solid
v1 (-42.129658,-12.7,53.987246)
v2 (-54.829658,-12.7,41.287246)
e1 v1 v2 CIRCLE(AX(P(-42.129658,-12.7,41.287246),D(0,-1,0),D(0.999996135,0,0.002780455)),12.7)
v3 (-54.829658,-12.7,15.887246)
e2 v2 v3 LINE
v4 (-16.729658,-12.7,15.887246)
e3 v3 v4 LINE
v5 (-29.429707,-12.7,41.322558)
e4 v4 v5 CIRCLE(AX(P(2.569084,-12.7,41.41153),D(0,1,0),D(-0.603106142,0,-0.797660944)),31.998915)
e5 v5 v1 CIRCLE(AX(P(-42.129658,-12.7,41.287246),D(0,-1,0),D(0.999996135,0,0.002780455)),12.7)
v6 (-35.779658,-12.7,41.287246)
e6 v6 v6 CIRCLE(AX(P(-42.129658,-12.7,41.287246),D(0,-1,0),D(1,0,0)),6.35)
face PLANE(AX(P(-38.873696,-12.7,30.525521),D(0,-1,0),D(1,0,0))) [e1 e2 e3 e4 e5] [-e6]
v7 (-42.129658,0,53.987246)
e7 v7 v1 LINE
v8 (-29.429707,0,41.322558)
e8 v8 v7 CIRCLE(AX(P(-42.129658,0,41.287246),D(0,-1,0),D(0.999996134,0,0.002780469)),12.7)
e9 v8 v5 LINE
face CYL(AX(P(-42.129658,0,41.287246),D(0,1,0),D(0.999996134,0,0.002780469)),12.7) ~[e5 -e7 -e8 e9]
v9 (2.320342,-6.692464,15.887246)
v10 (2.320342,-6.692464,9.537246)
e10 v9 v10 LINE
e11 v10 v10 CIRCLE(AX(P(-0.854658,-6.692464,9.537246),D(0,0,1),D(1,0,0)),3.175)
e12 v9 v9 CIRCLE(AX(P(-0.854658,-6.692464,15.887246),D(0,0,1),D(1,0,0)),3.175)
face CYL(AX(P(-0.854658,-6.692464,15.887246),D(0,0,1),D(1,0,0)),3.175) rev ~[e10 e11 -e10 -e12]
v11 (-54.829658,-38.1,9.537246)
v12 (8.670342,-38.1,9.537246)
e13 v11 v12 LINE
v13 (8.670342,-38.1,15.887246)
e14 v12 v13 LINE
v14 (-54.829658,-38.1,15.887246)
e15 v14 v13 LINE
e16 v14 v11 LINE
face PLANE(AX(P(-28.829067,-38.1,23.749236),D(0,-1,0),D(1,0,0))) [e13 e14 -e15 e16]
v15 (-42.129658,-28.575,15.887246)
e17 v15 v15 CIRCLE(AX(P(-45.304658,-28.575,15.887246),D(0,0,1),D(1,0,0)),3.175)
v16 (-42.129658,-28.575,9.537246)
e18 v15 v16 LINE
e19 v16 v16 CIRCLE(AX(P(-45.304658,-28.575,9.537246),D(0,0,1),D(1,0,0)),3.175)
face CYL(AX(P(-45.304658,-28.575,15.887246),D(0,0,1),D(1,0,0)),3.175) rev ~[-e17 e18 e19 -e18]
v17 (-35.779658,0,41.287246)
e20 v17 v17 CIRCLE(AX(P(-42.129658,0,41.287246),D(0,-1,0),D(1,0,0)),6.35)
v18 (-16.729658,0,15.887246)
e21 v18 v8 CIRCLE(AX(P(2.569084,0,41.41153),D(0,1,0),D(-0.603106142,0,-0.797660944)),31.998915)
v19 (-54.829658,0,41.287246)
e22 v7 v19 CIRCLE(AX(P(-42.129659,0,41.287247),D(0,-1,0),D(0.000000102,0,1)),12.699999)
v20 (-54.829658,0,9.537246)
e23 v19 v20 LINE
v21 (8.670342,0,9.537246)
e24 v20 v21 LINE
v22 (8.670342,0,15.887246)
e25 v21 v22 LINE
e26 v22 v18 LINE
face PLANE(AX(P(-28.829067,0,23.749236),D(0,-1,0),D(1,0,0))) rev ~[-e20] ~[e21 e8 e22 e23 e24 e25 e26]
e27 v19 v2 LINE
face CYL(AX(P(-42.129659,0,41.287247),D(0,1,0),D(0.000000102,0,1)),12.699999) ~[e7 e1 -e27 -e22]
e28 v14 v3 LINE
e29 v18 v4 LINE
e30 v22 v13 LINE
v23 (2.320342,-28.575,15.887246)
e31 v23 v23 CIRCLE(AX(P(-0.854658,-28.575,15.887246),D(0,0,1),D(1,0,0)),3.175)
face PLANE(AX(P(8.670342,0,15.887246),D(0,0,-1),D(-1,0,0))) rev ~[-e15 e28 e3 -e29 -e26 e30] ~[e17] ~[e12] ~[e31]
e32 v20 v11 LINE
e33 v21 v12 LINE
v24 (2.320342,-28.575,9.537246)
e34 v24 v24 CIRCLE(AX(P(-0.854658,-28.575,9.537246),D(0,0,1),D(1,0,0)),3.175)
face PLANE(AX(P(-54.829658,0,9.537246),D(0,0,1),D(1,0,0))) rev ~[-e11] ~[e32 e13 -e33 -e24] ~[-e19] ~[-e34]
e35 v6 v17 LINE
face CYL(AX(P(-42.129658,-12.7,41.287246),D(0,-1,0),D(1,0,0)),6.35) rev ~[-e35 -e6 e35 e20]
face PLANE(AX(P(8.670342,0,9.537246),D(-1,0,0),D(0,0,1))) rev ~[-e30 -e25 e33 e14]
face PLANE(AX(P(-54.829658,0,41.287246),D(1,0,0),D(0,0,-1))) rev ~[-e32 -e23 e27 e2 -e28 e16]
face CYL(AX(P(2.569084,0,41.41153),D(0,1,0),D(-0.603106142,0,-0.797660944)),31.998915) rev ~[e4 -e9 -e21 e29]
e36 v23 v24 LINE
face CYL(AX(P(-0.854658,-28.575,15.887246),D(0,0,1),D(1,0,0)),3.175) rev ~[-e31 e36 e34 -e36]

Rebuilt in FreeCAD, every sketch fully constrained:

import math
import FreeCAD as App
import Part
import Sketcher

V = App.Vector
Q = App.Units.Quantity

doc = App.newDocument("Part")
body = doc.addObject("PartDesign::Body", "Body")

sketch1 = doc.addObject("Sketcher::SketchObject", "Sketch")
body.addObject(sketch1)
sketch1.AttachmentSupport = (doc.XZ_Plane, [""])
sketch1.MapMode = "FlatFace"
sketch1.addGeometry([
    Part.ArcOfCircle(Part.Circle(V(-42, 41, 0), V(0, 0, 1), 13), math.radians(90), math.radians(180)),
    Part.LineSegment(V(-55, 41, 0), V(-55, 10, 0)),
    Part.LineSegment(V(-55, 10, 0), V(9, 10, 0)),
    Part.LineSegment(V(9, 10, 0), V(9, 16, 0)),
    Part.LineSegment(V(9, 16, 0), V(-17, 16, 0)),
    Part.ArcOfCircle(Part.Circle(V(3, 41, 0), V(0, 0, 1), 32), math.radians(-180), math.radians(-127)),
    Part.ArcOfCircle(Part.Circle(V(-42, 41, 0), V(0, 0, 1), 13), math.radians(0), math.radians(90)),
], False)
sketch1.addConstraint([
    Sketcher.Constraint("Tangent", 0, 2, 1, 1),
    Sketcher.Constraint("Coincident", 1, 2, 2, 1),
    Sketcher.Constraint("Coincident", 2, 2, 3, 1),
    Sketcher.Constraint("Coincident", 3, 2, 4, 1),
    Sketcher.Constraint("Coincident", 4, 2, 5, 2),
    Sketcher.Constraint("Tangent", 5, 1, 6, 1),
    Sketcher.Constraint("Tangent", 6, 2, 0, 1),
    Sketcher.Constraint("Vertical", 1),
    Sketcher.Constraint("Horizontal", 2),
    Sketcher.Constraint("Vertical", 3),
    Sketcher.Constraint("Horizontal", 4),
    Sketcher.Constraint("Equal", 0, 6),
    Sketcher.Constraint("Vertical", 0, 3, 6, 2),
    Sketcher.Constraint("Radius", 0, Q("0.4999999 in")),
    Sketcher.Constraint("DistanceX", 4, 2, 4, 1, Q("1 in")),
    Sketcher.Constraint("DistanceX", 2, 1, 2, 2, Q("2.5 in")),
    Sketcher.Constraint("DistanceY", 3, 2, 6, 3, Q("1 in")),
    Sketcher.Constraint("DistanceY", 1, 2, 1, 1, Q("1.25 in")),
    Sketcher.Constraint("Radius", 5, 31.998915),
    Sketcher.Constraint("DistanceX", 0, 3, -1, 1, 42.129659),
    Sketcher.Constraint("DistanceY", -1, 1, 5, 3, 41.41153),
])
pad1 = doc.addObject("PartDesign::Pad", "Pad")
body.addObject(pad1)
pad1.Profile = sketch1
pad1.Length = Q("1.5 in")

sketch2 = doc.addObject("Sketcher::SketchObject", "Sketch001")
body.addObject(sketch2)
sketch2.AttachmentSupport = (doc.XZ_Plane, [""])
sketch2.MapMode = "FlatFace"
sketch2.AttachmentOffset = App.Placement(V(0, 0, 1.5 * 25.4), App.Rotation())
sketch2.addGeometry([
    Part.LineSegment(V(-55, 16, 0), V(-17, 16, 0)),
    Part.ArcOfCircle(Part.Circle(V(3, 41, 0), V(0, 0, 1), 32), math.radians(-180), math.radians(-127)),
    Part.ArcOfCircle(Part.Circle(V(-42, 41, 0), V(0, 0, 1), 13), math.radians(0), math.radians(180)),
    Part.LineSegment(V(-55, 41, 0), V(-55, 16, 0)),
], False)
sketch2.addConstraint([
    Sketcher.Constraint("Coincident", 0, 2, 1, 2),
    Sketcher.Constraint("Tangent", 1, 1, 2, 1),
    Sketcher.Constraint("Tangent", 2, 2, 3, 1),
    Sketcher.Constraint("Coincident", 3, 2, 0, 1),
    Sketcher.Constraint("Horizontal", 0),
    Sketcher.Constraint("Vertical", 3),
    Sketcher.Constraint("Radius", 2, Q("0.5 in")),
    Sketcher.Constraint("DistanceY", 3, 2, 3, 1, Q("1 in")),
    Sketcher.Constraint("DistanceX", 0, 1, 0, 2, Q("1.5 in")),
    Sketcher.Constraint("Radius", 1, 31.998915),
    Sketcher.Constraint("DistanceY", -1, 1, 1, 3, 41.41153),
    Sketcher.Constraint("DistanceX", 0, 2, -1, 1, 16.729658),
])
pocket1 = doc.addObject("PartDesign::Pocket", "Pocket")
body.addObject(pocket1)
pocket1.Profile = sketch2
pocket1.Length = Q("1 in")

sketch3 = doc.addObject("Sketcher::SketchObject", "Sketch002")
body.addObject(sketch3)
sketch3.AttachmentSupport = (doc.XZ_Plane, [""])
sketch3.MapMode = "FlatFace"
sketch3.AttachmentOffset = App.Placement(V(0, 0, 0.5 * 25.4), App.Rotation())
sketch3.addGeometry(Part.Circle(V(-42, 41, 0), V(0, 0, 1), 6), False)
sketch3.addConstraint([
    Sketcher.Constraint("Diameter", 0, Q("0.5 in")),
    Sketcher.Constraint("DistanceX", 0, 3, -1, 1, 42.129658),
    Sketcher.Constraint("DistanceY", -1, 1, 0, 3, 41.287246),
])
pocket2 = doc.addObject("PartDesign::Pocket", "Pocket001")
body.addObject(pocket2)
pocket2.Profile = sketch3
pocket2.Type = "ThroughAll"

sketch4 = doc.addObject("Sketcher::SketchObject", "Sketch003")
body.addObject(sketch4)
sketch4.AttachmentSupport = (doc.XY_Plane, [""])
sketch4.MapMode = "FlatFace"
sketch4.AttachmentOffset = App.Placement(V(0, 0, 15.887246), App.Rotation())
sketch4.addGeometry([
    Part.Circle(V(-0.9, -6.7, 0), V(0, 0, 1), 3.2),
    Part.Circle(V(-0.9, -28.6, 0), V(0, 0, 1), 3.2),
    Part.Circle(V(-45.3, -28.6, 0), V(0, 0, 1), 3.2),
], False)
sketch4.addConstraint([
    Sketcher.Constraint("Equal", 0, 1),
    Sketcher.Constraint("Equal", 1, 2),
    Sketcher.Constraint("Horizontal", 1, 3, 2, 3),
    Sketcher.Constraint("Vertical", 0, 3, 1, 3),
    Sketcher.Constraint("Diameter", 0, Q("0.25 in")),
    Sketcher.Constraint("DistanceX", 2, 3, 1, 3, Q("1.75 in")),
    Sketcher.Constraint("DistanceY", 1, 3, -1, 1, Q("1.125 in")),
    Sketcher.Constraint("DistanceX", 0, 3, -1, 1, 0.854658),
    Sketcher.Constraint("DistanceY", 0, 3, -1, 1, 6.692464),
])
pocket3 = doc.addObject("PartDesign::Pocket", "Pocket002")
body.addObject(pocket3)
pocket3.Profile = sketch4
pocket3.Type = "ThroughAll"

doc.recompute()
